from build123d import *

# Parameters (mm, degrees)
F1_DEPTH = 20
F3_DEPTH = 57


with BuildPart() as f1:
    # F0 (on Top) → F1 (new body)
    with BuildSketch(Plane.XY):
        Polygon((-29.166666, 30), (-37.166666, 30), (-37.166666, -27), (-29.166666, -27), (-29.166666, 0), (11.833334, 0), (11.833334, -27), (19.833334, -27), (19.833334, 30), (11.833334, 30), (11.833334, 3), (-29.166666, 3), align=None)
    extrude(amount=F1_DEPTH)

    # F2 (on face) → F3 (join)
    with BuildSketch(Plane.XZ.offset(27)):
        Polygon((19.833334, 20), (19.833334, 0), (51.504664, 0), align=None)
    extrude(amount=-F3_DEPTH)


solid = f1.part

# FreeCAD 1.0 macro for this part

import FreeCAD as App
import Part
import Sketcher
Q = App.Units.Quantity

doc = App.newDocument("Part")
body = doc.addObject("PartDesign::Body", "Body")

# Sketch on XY plane
sketch1 = body.newObject("Sketcher::SketchObject", "Sketch")
sketch1.AttachmentSupport = (doc.getObject("XY_Plane"), [""])
sketch1.MapMode = "FlatFace"
sketch1.addGeometry([
    Part.LineSegment(App.Vector(-29, 30, 0), App.Vector(-37, 30, 0)),  # 0
    Part.LineSegment(App.Vector(-37, 30, 0), App.Vector(-37, -27, 0)),  # 1
    Part.LineSegment(App.Vector(-37, -27, 0), App.Vector(-29, -27, 0)),  # 2
    Part.LineSegment(App.Vector(-29, -27, 0), App.Vector(-29, 0, 0)),  # 3
    Part.LineSegment(App.Vector(-29, 0, 0), App.Vector(12, 0, 0)),  # 4
    Part.LineSegment(App.Vector(12, 0, 0), App.Vector(12, -27, 0)),  # 5
    Part.LineSegment(App.Vector(12, -27, 0), App.Vector(20, -27, 0)),  # 6
    Part.LineSegment(App.Vector(20, -27, 0), App.Vector(20, 30, 0)),  # 7
    Part.LineSegment(App.Vector(20, 30, 0), App.Vector(12, 30, 0)),  # 8
    Part.LineSegment(App.Vector(12, 30, 0), App.Vector(12, 3, 0)),  # 9
    Part.LineSegment(App.Vector(12, 3, 0), App.Vector(-29, 3, 0)),  # 10
    Part.LineSegment(App.Vector(-29, 3, 0), App.Vector(-29, 30, 0)),  # 11
], False)
sketch1.addConstraint([
    Sketcher.Constraint("Coincident", 0, 2, 1, 1),
    Sketcher.Constraint("Coincident", 1, 2, 2, 1),
    Sketcher.Constraint("Coincident", 2, 2, 3, 1),
    Sketcher.Constraint("Coincident", 3, 2, 4, 1),
    Sketcher.Constraint("Coincident", 4, 2, 5, 1),
    Sketcher.Constraint("Coincident", 5, 2, 6, 1),
    Sketcher.Constraint("Coincident", 6, 2, 7, 1),
    Sketcher.Constraint("Coincident", 7, 2, 8, 1),
    Sketcher.Constraint("Coincident", 8, 2, 9, 1),
    Sketcher.Constraint("Coincident", 9, 2, 10, 1),
    Sketcher.Constraint("Coincident", 10, 2, 11, 1),
    Sketcher.Constraint("Coincident", 11, 2, 0, 1),
    Sketcher.Constraint("Horizontal", 0),
    Sketcher.Constraint("Vertical", 1),
    Sketcher.Constraint("Horizontal", 2),
    Sketcher.Constraint("Vertical", 3),
    Sketcher.Constraint("Horizontal", 4),
    Sketcher.Constraint("Vertical", 5),
    Sketcher.Constraint("Horizontal", 6),
    Sketcher.Constraint("Vertical", 7),
    Sketcher.Constraint("Horizontal", 8),
    Sketcher.Constraint("Vertical", 9),
    Sketcher.Constraint("Horizontal", 10),
    Sketcher.Constraint("Vertical", 11),
    Sketcher.Constraint("PointOnObject", 3, 2, -1),
    Sketcher.Constraint("Horizontal", 2, 2, 5, 2),
    Sketcher.Constraint("Horizontal", 0, 2, 7, 2),
    Sketcher.Constraint("Vertical", 5, 2, 8, 2),
    Sketcher.Constraint("Vertical", 3, 2, 10, 2),
    Sketcher.Constraint("Equal", 2, 6),
    Sketcher.Constraint("Equal", 5, 9),
    Sketcher.Constraint("DistanceX", 0, 2, 0, 1, Q("8 mm")),
    Sketcher.Constraint("DistanceX", 4, 1, 4, 2, Q("41 mm")),
    Sketcher.Constraint("DistanceY", 1, 2, 1, 1, Q("57 mm")),
    Sketcher.Constraint("DistanceY", 3, 1, 3, 2, Q("27 mm")),
    Sketcher.Constraint("DistanceX", 0, 2, -1, 1, Q("37.166666 mm")),
])
pad1 = body.newObject("PartDesign::Pad", "Pad")
pad1.Profile = sketch1
pad1.Length = 20

# Sketch on XZ plane
sketch2 = body.newObject("Sketcher::SketchObject", "Sketch001")
sketch2.AttachmentSupport = (doc.getObject("XZ_Plane"), [""])
sketch2.MapMode = "FlatFace"
sketch2.AttachmentOffset = App.Placement(App.Vector(0, 0, 27), App.Rotation())
sketch2.addGeometry([
    Part.LineSegment(App.Vector(20, 20, 0), App.Vector(20, 0, 0)),
    Part.LineSegment(App.Vector(20, 0, 0), App.Vector(52, 0, 0)),
    Part.LineSegment(App.Vector(52, 0, 0), App.Vector(20, 20, 0)),
], False)
sketch2.addConstraint([
    Sketcher.Constraint("Coincident", 0, 2, 1, 1),
    Sketcher.Constraint("Coincident", 1, 2, 2, 1),
    Sketcher.Constraint("Coincident", 2, 2, 0, 1),
    Sketcher.Constraint("Vertical", 0),
    Sketcher.Constraint("Horizontal", 1),
    Sketcher.Constraint("PointOnObject", 0, 2, -1),
    Sketcher.Constraint("DistanceY", 0, 2, 0, 1, Q("20 mm")),
    Sketcher.Constraint("DistanceX", 1, 1, 1, 2, Q("31.67133 mm")),
    Sketcher.Constraint("DistanceX", -1, 1, 0, 2, Q("19.833334 mm")),
])
pad2 = body.newObject("PartDesign::Pad", "Pad001")
pad2.Profile = sketch2
pad2.Length = 57
pad2.Reversed = True

doc.recompute()
